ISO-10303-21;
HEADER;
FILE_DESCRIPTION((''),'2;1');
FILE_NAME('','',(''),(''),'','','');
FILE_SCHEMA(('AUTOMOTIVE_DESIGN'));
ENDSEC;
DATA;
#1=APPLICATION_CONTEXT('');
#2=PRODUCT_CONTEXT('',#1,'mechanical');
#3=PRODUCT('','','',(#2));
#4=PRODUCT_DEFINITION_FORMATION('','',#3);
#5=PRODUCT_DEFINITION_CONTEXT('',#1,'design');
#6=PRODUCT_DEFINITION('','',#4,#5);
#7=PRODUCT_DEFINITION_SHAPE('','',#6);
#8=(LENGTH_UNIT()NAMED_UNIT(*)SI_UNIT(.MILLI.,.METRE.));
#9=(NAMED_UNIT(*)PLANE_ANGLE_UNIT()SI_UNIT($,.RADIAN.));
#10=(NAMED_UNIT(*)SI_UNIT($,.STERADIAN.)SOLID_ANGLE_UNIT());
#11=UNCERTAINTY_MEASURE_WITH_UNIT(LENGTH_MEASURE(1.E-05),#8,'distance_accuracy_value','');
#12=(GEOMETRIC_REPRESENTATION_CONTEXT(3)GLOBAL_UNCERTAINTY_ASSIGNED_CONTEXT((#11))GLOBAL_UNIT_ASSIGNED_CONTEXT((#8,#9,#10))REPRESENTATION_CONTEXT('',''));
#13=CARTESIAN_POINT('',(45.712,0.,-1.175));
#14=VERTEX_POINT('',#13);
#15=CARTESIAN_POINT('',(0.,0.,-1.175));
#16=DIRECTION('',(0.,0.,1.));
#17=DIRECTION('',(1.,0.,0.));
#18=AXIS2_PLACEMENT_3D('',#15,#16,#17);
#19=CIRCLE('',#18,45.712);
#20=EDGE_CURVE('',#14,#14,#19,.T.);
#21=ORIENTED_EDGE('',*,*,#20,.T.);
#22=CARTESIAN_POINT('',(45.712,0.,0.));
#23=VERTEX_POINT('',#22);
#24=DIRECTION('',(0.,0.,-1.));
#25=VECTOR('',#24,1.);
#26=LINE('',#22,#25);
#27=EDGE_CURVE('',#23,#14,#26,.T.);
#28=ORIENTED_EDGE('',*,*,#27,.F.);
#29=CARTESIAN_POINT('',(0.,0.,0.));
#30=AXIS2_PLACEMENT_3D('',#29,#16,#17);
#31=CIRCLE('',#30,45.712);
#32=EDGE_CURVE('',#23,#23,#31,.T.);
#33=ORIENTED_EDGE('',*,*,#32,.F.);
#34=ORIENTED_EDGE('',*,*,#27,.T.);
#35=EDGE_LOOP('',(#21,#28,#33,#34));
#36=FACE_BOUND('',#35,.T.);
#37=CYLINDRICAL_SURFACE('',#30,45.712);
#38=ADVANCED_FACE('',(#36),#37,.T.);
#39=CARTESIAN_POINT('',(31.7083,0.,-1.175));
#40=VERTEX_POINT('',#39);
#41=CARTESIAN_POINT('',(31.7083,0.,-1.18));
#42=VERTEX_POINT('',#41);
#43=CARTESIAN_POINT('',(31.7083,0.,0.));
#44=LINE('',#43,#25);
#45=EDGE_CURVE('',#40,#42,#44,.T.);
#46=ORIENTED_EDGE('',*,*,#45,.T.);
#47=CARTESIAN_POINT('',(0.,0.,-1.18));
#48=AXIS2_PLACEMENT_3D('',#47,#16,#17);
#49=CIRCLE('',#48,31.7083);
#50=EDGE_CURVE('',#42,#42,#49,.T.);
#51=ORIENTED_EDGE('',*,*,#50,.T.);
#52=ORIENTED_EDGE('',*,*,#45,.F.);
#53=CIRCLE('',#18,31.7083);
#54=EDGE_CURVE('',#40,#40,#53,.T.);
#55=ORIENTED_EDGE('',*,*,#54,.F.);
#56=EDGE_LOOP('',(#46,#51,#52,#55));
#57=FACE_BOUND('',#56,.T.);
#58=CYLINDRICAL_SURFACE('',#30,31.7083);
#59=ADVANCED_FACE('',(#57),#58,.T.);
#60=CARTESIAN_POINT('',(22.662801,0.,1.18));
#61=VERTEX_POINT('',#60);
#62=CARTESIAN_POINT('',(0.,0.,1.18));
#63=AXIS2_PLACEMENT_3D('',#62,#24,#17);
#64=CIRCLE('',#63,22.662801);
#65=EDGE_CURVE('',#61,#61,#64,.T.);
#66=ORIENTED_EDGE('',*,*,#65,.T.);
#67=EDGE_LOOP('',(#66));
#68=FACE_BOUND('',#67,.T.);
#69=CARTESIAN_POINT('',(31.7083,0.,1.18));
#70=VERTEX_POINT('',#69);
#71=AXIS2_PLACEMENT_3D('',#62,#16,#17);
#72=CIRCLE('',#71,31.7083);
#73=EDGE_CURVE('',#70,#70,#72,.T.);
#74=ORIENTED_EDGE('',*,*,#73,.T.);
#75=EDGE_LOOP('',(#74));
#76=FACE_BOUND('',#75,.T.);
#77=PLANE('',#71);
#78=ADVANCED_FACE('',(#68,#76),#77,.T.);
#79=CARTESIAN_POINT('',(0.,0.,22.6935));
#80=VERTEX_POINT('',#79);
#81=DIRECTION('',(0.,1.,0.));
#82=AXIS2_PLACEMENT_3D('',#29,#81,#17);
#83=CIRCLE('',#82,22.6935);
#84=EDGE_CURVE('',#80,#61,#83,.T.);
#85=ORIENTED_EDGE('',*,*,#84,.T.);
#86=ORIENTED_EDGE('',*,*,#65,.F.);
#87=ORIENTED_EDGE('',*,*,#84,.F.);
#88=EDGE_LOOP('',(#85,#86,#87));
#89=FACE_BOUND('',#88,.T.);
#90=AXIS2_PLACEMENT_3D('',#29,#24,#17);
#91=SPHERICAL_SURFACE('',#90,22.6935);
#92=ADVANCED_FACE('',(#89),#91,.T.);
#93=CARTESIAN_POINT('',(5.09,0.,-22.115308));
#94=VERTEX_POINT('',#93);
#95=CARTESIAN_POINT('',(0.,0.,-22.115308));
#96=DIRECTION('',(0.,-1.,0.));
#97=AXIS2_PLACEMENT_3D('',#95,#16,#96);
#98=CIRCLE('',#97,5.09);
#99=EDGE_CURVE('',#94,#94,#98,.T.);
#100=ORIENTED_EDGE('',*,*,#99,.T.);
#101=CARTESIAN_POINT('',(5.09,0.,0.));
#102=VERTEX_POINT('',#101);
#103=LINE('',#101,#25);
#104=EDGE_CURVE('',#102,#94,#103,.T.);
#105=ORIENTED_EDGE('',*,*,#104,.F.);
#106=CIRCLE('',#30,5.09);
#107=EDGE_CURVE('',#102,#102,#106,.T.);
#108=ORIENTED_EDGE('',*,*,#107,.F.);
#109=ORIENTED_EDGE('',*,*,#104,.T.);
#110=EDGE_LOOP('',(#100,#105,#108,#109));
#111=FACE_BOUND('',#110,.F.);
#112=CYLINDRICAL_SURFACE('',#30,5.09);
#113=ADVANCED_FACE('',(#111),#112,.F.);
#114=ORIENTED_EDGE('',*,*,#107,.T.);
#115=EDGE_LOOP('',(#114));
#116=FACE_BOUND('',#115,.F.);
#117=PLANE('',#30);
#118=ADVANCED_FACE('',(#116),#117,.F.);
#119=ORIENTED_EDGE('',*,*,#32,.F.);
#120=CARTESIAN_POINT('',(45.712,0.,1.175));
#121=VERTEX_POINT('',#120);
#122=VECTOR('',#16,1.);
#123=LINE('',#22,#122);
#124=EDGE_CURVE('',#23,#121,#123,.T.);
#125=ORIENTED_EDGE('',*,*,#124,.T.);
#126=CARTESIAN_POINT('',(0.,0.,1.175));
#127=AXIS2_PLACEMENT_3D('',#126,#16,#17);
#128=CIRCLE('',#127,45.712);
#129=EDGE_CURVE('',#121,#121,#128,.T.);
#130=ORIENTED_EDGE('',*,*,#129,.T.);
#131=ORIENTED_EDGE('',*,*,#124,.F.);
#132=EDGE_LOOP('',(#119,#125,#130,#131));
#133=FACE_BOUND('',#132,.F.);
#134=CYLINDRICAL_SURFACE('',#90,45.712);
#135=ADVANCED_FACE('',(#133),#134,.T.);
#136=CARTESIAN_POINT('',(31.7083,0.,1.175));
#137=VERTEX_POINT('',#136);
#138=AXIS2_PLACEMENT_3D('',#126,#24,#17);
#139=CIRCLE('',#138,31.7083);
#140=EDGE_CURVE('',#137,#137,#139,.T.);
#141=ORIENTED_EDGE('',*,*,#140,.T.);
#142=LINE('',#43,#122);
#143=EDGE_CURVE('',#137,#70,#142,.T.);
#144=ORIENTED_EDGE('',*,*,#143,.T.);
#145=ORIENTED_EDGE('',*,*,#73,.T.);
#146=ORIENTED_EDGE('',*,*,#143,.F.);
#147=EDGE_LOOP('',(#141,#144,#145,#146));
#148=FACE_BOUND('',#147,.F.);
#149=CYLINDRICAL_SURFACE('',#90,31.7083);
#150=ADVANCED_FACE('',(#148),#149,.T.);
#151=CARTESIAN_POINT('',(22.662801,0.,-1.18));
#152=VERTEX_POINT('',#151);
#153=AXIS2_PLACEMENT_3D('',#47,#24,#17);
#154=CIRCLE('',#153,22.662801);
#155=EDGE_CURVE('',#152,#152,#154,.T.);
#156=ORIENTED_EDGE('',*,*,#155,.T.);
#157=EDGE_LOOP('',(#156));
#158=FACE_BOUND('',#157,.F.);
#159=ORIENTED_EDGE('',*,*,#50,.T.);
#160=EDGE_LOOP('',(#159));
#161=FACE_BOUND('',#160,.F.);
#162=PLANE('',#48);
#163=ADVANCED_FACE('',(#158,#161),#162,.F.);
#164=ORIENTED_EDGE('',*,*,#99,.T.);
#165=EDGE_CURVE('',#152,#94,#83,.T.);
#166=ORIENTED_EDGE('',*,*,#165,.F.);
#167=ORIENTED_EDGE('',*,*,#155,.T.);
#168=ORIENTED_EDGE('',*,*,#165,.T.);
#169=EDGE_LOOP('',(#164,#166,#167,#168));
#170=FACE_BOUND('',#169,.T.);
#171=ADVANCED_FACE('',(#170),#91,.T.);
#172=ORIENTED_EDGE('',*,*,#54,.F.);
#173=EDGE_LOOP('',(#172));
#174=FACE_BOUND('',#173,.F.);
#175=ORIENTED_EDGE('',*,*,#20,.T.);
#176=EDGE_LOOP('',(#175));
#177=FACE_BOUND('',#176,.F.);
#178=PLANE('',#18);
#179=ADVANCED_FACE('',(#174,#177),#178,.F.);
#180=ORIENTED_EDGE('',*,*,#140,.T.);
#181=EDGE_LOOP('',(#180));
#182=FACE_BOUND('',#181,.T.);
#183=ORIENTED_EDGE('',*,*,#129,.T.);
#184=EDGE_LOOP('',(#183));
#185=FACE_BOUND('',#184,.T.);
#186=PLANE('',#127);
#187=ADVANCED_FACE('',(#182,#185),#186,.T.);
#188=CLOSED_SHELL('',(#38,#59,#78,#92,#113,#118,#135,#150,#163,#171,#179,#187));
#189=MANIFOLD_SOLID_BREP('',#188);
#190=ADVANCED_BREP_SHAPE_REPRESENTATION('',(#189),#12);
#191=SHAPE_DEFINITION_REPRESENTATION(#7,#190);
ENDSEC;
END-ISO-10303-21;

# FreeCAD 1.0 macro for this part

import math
import FreeCAD as App
import Part
import Sketcher
from FreeCAD import Vector

doc = App.newDocument("Part")
body = doc.addObject("PartDesign::Body", "Body")

sketch1 = body.newObject("Sketcher::SketchObject", "Sketch")
sketch1.AttachmentSupport = (doc.getObject("XZ_Plane"), [""])
sketch1.MapMode = "FlatFace"
sketch1.addGeometry([
    Part.ArcOfCircle(Part.Circle(Vector(0, 0, 0), Vector(0, 0, 1), 23), math.radians(-90), math.radians(90)),
    Part.LineSegment(Vector(0, 23, 0), Vector(0, -23, 0)),
], False)
sketch1.addConstraint([
    Sketcher.Constraint("Coincident", 0, 1, 1, 2),
    Sketcher.Constraint("Coincident", 1, 1, 0, 2),
    Sketcher.Constraint("Vertical", 1),
    Sketcher.Constraint("Coincident", 0, 3, -1, 1),
    Sketcher.Constraint("PointOnObject", 0, 1, -2),
    Sketcher.Constraint("Radius", 0, 22.6935),
])
revolution = body.newObject("PartDesign::Revolution", "Revolution")
revolution.Profile = sketch1
revolution.ReferenceAxis = (sketch1, ["V_Axis"])
revolution.Angle = 360

sketch2 = body.newObject("Sketcher::SketchObject", "Sketch001")
sketch2.AttachmentSupport = (doc.getObject("XY_Plane"), [""])
sketch2.MapMode = "FlatFace"
sketch2.addGeometry(Part.Circle(Vector(0, 0, 0), Vector(0, 0, 1), 46), False)
sketch2.addConstraint([
    Sketcher.Constraint("Coincident", 0, 3, -1, 1),
    Sketcher.Constraint("Diameter", 0, 91.424),
])
pad1 = body.newObject("PartDesign::Pad", "Pad")
pad1.Profile = sketch2
pad1.Length = 2.35
pad1.Midplane = True

sketch3 = body.newObject("Sketcher::SketchObject", "Sketch002")
sketch3.AttachmentSupport = (doc.getObject("XY_Plane"), [""])
sketch3.MapMode = "FlatFace"
sketch3.addGeometry(Part.Circle(Vector(0, 0, 0), Vector(0, 0, 1), 32), False)
sketch3.addConstraint([
    Sketcher.Constraint("Coincident", 0, 3, -1, 1),
    Sketcher.Constraint("Diameter", 0, 63.4166),
])
pad2 = body.newObject("PartDesign::Pad", "Pad001")
pad2.Profile = sketch3
pad2.Length = 2.36
pad2.Midplane = True

sketch4 = body.newObject("Sketcher::SketchObject", "Sketch003")
sketch4.AttachmentSupport = (doc.getObject("XY_Plane"), [""])
sketch4.MapMode = "FlatFace"
sketch4.addGeometry(Part.Circle(Vector(0, 0, 0), Vector(0, 0, 1), 5), False)
sketch4.addConstraint([
    Sketcher.Constraint("Coincident", 0, 3, -1, 1),
    Sketcher.Constraint("Diameter", 0, 10.18),
])
pocket1 = body.newObject("PartDesign::Pocket", "Pocket")
pocket1.Profile = sketch4
pocket1.Length = 53.2556

doc.recompute()
